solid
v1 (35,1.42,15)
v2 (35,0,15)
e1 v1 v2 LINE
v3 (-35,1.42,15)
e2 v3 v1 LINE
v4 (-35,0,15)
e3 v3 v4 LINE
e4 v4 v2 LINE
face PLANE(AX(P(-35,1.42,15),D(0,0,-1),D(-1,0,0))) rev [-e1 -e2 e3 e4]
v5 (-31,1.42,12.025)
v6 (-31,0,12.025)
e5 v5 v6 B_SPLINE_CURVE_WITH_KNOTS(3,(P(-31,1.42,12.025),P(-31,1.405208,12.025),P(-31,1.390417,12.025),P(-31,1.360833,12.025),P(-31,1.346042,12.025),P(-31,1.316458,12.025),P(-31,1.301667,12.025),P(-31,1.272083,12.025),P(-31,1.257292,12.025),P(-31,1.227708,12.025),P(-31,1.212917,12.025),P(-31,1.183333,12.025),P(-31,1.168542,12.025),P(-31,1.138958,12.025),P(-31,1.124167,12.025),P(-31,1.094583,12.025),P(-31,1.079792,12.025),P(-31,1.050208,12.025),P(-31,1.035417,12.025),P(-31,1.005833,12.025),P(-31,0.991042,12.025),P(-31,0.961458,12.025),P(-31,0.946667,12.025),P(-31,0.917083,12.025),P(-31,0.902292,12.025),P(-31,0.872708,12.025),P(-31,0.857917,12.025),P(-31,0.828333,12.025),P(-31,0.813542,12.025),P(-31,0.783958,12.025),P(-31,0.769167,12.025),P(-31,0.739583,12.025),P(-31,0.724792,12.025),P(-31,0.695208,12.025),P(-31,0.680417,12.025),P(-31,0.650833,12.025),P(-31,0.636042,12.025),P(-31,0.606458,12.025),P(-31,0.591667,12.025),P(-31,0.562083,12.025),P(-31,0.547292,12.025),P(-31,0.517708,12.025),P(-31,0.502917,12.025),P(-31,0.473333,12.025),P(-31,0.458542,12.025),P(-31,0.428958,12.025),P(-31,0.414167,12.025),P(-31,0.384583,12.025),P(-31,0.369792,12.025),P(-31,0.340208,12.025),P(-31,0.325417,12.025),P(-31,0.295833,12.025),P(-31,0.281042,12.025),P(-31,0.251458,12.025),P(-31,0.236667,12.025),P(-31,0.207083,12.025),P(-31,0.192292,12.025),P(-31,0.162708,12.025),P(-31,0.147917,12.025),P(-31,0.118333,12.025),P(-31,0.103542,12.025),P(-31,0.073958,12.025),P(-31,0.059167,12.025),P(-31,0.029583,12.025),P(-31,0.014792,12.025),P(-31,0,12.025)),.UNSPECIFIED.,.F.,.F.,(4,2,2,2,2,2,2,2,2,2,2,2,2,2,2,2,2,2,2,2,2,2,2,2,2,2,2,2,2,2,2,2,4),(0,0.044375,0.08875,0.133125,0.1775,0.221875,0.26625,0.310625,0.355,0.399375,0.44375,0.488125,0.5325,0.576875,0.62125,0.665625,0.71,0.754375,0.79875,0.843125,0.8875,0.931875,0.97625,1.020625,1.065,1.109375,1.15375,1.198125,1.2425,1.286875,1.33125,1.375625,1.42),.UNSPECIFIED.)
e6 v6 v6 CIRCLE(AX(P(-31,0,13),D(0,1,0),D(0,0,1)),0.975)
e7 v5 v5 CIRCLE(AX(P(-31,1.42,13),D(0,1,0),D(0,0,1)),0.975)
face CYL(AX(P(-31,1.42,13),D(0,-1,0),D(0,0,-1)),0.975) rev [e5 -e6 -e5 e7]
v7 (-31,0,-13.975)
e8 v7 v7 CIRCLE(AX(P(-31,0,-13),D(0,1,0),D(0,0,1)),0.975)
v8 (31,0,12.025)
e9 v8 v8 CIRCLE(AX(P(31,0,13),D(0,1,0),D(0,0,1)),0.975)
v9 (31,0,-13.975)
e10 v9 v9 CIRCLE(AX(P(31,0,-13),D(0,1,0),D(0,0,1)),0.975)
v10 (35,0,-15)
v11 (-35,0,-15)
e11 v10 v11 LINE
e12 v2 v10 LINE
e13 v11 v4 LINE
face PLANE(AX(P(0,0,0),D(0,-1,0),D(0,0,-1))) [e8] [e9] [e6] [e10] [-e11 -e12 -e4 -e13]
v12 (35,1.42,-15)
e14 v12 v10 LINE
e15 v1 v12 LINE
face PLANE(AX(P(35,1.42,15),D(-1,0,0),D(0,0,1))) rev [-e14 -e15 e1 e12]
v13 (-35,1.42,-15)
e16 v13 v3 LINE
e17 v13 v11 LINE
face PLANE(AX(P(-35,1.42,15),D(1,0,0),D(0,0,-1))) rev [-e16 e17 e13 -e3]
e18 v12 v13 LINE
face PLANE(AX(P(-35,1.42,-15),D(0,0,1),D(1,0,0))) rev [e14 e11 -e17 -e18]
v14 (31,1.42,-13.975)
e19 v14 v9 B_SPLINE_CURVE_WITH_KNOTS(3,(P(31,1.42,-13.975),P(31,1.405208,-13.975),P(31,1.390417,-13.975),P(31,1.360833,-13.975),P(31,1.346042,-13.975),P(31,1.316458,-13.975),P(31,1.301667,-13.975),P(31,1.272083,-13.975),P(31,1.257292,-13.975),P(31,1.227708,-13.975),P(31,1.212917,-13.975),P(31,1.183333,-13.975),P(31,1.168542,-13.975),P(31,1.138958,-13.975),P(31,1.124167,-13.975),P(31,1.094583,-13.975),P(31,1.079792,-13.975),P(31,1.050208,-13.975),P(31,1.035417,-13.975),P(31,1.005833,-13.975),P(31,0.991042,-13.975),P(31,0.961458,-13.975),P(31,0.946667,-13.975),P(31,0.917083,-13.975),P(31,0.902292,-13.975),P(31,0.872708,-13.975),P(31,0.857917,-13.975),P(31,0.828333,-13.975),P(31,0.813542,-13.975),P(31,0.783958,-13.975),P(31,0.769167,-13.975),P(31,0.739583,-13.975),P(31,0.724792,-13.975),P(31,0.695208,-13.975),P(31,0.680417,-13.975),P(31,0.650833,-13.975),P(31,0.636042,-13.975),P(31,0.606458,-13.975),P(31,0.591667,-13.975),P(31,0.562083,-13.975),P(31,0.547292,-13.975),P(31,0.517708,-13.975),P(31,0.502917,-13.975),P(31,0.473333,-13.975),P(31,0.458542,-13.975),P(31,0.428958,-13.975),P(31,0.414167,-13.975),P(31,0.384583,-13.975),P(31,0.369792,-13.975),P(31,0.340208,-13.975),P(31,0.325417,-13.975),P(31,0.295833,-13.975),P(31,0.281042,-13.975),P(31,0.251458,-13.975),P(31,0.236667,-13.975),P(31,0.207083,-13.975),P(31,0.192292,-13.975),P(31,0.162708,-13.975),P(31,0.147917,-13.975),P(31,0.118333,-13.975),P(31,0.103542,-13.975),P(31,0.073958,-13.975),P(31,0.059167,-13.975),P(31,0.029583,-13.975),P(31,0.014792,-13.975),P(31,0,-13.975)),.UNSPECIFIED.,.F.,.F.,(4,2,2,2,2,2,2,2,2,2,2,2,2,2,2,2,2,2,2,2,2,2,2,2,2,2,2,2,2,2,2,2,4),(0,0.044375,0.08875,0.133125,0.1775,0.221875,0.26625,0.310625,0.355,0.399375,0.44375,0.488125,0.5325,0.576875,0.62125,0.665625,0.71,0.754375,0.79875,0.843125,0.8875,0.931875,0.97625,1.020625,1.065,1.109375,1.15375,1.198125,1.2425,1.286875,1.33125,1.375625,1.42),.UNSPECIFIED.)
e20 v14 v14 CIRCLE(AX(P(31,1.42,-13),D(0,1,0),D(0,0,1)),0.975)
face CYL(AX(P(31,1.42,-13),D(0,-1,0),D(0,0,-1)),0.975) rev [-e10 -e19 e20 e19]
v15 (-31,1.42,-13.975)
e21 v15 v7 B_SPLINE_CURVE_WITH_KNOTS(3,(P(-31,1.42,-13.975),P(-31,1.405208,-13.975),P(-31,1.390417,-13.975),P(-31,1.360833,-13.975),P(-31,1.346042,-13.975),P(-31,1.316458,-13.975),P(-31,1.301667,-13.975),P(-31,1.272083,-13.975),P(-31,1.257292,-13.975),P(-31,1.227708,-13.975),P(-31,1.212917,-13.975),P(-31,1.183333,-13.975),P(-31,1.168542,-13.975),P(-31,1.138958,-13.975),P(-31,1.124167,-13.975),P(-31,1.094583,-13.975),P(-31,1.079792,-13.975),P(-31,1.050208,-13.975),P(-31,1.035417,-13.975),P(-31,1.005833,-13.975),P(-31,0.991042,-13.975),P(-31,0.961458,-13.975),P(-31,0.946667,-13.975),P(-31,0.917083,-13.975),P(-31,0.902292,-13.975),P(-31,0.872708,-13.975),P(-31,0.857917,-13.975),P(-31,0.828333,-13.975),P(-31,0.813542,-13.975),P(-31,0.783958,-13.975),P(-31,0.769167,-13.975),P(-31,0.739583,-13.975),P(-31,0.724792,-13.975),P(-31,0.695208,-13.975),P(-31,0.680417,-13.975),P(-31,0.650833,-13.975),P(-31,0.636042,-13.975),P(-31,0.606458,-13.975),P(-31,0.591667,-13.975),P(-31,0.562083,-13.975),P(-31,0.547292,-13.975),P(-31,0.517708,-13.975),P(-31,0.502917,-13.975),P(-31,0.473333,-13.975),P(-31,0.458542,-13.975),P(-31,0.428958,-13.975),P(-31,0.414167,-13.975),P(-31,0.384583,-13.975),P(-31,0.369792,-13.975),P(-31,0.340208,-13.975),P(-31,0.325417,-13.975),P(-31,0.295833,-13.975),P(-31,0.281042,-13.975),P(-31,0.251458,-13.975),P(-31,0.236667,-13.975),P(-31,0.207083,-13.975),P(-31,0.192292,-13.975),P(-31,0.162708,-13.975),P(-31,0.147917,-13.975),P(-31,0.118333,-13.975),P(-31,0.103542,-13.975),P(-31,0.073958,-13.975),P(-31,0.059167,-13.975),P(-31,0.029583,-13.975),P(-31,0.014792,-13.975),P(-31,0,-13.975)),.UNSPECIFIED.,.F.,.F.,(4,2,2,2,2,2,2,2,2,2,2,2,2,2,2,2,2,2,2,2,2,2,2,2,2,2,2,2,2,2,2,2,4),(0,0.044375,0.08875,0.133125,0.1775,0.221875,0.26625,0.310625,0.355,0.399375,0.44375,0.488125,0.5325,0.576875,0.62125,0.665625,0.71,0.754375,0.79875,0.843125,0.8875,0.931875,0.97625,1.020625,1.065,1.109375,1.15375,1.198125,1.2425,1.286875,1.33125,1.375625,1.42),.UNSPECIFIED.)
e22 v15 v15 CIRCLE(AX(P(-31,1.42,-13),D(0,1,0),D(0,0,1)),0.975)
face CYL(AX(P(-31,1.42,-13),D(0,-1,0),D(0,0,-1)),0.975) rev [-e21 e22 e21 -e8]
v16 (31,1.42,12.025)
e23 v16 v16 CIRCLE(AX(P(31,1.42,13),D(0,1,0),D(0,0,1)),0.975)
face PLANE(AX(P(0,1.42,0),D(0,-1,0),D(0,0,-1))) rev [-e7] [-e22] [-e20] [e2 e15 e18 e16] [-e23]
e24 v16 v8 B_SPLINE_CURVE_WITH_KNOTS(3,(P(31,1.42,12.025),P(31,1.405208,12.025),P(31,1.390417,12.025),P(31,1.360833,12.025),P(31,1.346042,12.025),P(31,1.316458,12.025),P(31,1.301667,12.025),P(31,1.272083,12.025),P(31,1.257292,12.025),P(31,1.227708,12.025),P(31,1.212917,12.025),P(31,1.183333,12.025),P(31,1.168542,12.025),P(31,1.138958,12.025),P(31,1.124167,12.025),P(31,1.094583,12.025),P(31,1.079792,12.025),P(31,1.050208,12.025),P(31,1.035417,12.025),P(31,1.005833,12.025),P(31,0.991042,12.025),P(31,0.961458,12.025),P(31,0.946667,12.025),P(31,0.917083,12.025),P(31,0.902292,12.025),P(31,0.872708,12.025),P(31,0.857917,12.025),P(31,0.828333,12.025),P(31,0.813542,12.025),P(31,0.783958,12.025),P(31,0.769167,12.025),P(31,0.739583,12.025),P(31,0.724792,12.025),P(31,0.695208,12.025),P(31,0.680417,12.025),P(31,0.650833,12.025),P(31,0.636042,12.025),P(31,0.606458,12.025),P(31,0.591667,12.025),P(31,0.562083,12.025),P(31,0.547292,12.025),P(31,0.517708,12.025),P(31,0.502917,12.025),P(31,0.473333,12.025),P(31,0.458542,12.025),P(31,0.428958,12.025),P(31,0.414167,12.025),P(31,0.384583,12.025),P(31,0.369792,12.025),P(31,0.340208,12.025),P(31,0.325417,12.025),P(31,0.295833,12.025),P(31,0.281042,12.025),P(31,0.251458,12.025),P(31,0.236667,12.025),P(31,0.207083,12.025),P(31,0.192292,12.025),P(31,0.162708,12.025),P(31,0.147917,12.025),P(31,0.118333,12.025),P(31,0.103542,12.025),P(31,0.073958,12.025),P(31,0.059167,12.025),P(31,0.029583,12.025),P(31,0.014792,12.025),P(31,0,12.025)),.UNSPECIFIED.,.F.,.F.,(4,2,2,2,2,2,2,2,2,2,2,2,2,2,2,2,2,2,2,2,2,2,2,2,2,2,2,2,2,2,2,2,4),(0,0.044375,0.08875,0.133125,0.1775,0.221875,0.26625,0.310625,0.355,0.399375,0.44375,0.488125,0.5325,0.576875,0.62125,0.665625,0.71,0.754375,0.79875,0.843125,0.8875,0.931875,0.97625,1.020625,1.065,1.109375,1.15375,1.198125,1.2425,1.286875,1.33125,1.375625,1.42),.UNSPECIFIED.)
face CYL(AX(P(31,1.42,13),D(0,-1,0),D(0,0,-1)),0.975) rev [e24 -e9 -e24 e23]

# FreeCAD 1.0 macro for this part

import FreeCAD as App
import Part
import Sketcher
from FreeCAD import Vector
Q = App.Units.Quantity


def add_polygon(sketch, points):
    """Adds a closed chain of lines whose ends are joined by coincident constraints."""
    first, n = sketch.GeometryCount, len(points)
    for a, b in zip(points, points[1:] + points[:1]):
        sketch.addGeometry(Part.LineSegment(App.Vector(*a, 0), App.Vector(*b, 0)), False)
    for i in range(n):
        sketch.addConstraint(Sketcher.Constraint("Coincident", first + i, 2, first + (i + 1) % n, 1))

doc = App.newDocument("Part")
params = doc.addObject("Spreadsheet::Sheet", "Params")
for row, (alias, value) in enumerate([
    ("sketch1_diameter", "1.95 mm"),
    ("sketch1_width", "70 mm"),
    ("sketch1_height", "30 mm"),
    ("pad1_length", "1.42 mm"),
], start=1):
    params.set(f"A{row}", alias)
    params.set(f"B{row}", "=" + value)
    params.setAlias(f"B{row}", alias)

body = doc.addObject("PartDesign::Body", "Body")

# Sketch on XZ plane
sketch1 = body.newObject("Sketcher::SketchObject", "Sketch")
sketch1.AttachmentSupport = (doc.getObject("XZ_Plane"), [""])
sketch1.MapMode = "FlatFace"
add_polygon(sketch1, [(-35, -15), (-35, 15), (35, 15), (35, -15)])  # lines 0-3
sketch1.addGeometry(Part.Circle(Vector(-31, 13, 0), Vector(0, 0, 1), 1), False)  # 4
sketch1.addGeometry(Part.Circle(Vector(31, 13, 0), Vector(0, 0, 1), 1), False)  # 5
sketch1.addGeometry(Part.Circle(Vector(-31, -13, 0), Vector(0, 0, 1), 1), False)  # 6
sketch1.addGeometry(Part.Circle(Vector(31, -13, 0), Vector(0, 0, 1), 1), False)  # 7
sketch1.addConstraint([
    Sketcher.Constraint("Vertical", 0),
    Sketcher.Constraint("Horizontal", 1),
    Sketcher.Constraint("Vertical", 2),
    Sketcher.Constraint("Horizontal", 3),
    Sketcher.Constraint("Equal", 4, 5),
    Sketcher.Constraint("Equal", 5, 6),
    Sketcher.Constraint("Equal", 6, 7),
    Sketcher.Constraint("Symmetric", 5, 3, 6, 3, -1, 1),
    Sketcher.Constraint("Symmetric", 4, 3, 7, 3, -1, 1),
    Sketcher.Constraint("Symmetric", 0, 2, 2, 2, -1, 1),
    Sketcher.Constraint("Symmetric", 4, 3, 5, 3, -2),
    Sketcher.Constraint("Diameter", 4, Q("1.95 mm")),
    Sketcher.Constraint("DistanceX", 1, 1, 1, 2, Q("70 mm")),
    Sketcher.Constraint("DistanceY", 0, 1, 0, 2, Q("30 mm")),
    Sketcher.Constraint("DistanceX", 4, 3, -1, 1, Q("31 mm")),
    Sketcher.Constraint("DistanceY", -1, 1, 4, 3, Q("13 mm")),
])
sketch1.setExpression("Constraints[15]", "Params.sketch1_diameter")
sketch1.setExpression("Constraints[16]", "Params.sketch1_width")
sketch1.setExpression("Constraints[17]", "Params.sketch1_height")
pad1 = body.newObject("PartDesign::Pad", "Pad")
pad1.Profile = sketch1
pad1.setExpression("Length", "Params.pad1_length")
pad1.Reversed = True

doc.recompute()
